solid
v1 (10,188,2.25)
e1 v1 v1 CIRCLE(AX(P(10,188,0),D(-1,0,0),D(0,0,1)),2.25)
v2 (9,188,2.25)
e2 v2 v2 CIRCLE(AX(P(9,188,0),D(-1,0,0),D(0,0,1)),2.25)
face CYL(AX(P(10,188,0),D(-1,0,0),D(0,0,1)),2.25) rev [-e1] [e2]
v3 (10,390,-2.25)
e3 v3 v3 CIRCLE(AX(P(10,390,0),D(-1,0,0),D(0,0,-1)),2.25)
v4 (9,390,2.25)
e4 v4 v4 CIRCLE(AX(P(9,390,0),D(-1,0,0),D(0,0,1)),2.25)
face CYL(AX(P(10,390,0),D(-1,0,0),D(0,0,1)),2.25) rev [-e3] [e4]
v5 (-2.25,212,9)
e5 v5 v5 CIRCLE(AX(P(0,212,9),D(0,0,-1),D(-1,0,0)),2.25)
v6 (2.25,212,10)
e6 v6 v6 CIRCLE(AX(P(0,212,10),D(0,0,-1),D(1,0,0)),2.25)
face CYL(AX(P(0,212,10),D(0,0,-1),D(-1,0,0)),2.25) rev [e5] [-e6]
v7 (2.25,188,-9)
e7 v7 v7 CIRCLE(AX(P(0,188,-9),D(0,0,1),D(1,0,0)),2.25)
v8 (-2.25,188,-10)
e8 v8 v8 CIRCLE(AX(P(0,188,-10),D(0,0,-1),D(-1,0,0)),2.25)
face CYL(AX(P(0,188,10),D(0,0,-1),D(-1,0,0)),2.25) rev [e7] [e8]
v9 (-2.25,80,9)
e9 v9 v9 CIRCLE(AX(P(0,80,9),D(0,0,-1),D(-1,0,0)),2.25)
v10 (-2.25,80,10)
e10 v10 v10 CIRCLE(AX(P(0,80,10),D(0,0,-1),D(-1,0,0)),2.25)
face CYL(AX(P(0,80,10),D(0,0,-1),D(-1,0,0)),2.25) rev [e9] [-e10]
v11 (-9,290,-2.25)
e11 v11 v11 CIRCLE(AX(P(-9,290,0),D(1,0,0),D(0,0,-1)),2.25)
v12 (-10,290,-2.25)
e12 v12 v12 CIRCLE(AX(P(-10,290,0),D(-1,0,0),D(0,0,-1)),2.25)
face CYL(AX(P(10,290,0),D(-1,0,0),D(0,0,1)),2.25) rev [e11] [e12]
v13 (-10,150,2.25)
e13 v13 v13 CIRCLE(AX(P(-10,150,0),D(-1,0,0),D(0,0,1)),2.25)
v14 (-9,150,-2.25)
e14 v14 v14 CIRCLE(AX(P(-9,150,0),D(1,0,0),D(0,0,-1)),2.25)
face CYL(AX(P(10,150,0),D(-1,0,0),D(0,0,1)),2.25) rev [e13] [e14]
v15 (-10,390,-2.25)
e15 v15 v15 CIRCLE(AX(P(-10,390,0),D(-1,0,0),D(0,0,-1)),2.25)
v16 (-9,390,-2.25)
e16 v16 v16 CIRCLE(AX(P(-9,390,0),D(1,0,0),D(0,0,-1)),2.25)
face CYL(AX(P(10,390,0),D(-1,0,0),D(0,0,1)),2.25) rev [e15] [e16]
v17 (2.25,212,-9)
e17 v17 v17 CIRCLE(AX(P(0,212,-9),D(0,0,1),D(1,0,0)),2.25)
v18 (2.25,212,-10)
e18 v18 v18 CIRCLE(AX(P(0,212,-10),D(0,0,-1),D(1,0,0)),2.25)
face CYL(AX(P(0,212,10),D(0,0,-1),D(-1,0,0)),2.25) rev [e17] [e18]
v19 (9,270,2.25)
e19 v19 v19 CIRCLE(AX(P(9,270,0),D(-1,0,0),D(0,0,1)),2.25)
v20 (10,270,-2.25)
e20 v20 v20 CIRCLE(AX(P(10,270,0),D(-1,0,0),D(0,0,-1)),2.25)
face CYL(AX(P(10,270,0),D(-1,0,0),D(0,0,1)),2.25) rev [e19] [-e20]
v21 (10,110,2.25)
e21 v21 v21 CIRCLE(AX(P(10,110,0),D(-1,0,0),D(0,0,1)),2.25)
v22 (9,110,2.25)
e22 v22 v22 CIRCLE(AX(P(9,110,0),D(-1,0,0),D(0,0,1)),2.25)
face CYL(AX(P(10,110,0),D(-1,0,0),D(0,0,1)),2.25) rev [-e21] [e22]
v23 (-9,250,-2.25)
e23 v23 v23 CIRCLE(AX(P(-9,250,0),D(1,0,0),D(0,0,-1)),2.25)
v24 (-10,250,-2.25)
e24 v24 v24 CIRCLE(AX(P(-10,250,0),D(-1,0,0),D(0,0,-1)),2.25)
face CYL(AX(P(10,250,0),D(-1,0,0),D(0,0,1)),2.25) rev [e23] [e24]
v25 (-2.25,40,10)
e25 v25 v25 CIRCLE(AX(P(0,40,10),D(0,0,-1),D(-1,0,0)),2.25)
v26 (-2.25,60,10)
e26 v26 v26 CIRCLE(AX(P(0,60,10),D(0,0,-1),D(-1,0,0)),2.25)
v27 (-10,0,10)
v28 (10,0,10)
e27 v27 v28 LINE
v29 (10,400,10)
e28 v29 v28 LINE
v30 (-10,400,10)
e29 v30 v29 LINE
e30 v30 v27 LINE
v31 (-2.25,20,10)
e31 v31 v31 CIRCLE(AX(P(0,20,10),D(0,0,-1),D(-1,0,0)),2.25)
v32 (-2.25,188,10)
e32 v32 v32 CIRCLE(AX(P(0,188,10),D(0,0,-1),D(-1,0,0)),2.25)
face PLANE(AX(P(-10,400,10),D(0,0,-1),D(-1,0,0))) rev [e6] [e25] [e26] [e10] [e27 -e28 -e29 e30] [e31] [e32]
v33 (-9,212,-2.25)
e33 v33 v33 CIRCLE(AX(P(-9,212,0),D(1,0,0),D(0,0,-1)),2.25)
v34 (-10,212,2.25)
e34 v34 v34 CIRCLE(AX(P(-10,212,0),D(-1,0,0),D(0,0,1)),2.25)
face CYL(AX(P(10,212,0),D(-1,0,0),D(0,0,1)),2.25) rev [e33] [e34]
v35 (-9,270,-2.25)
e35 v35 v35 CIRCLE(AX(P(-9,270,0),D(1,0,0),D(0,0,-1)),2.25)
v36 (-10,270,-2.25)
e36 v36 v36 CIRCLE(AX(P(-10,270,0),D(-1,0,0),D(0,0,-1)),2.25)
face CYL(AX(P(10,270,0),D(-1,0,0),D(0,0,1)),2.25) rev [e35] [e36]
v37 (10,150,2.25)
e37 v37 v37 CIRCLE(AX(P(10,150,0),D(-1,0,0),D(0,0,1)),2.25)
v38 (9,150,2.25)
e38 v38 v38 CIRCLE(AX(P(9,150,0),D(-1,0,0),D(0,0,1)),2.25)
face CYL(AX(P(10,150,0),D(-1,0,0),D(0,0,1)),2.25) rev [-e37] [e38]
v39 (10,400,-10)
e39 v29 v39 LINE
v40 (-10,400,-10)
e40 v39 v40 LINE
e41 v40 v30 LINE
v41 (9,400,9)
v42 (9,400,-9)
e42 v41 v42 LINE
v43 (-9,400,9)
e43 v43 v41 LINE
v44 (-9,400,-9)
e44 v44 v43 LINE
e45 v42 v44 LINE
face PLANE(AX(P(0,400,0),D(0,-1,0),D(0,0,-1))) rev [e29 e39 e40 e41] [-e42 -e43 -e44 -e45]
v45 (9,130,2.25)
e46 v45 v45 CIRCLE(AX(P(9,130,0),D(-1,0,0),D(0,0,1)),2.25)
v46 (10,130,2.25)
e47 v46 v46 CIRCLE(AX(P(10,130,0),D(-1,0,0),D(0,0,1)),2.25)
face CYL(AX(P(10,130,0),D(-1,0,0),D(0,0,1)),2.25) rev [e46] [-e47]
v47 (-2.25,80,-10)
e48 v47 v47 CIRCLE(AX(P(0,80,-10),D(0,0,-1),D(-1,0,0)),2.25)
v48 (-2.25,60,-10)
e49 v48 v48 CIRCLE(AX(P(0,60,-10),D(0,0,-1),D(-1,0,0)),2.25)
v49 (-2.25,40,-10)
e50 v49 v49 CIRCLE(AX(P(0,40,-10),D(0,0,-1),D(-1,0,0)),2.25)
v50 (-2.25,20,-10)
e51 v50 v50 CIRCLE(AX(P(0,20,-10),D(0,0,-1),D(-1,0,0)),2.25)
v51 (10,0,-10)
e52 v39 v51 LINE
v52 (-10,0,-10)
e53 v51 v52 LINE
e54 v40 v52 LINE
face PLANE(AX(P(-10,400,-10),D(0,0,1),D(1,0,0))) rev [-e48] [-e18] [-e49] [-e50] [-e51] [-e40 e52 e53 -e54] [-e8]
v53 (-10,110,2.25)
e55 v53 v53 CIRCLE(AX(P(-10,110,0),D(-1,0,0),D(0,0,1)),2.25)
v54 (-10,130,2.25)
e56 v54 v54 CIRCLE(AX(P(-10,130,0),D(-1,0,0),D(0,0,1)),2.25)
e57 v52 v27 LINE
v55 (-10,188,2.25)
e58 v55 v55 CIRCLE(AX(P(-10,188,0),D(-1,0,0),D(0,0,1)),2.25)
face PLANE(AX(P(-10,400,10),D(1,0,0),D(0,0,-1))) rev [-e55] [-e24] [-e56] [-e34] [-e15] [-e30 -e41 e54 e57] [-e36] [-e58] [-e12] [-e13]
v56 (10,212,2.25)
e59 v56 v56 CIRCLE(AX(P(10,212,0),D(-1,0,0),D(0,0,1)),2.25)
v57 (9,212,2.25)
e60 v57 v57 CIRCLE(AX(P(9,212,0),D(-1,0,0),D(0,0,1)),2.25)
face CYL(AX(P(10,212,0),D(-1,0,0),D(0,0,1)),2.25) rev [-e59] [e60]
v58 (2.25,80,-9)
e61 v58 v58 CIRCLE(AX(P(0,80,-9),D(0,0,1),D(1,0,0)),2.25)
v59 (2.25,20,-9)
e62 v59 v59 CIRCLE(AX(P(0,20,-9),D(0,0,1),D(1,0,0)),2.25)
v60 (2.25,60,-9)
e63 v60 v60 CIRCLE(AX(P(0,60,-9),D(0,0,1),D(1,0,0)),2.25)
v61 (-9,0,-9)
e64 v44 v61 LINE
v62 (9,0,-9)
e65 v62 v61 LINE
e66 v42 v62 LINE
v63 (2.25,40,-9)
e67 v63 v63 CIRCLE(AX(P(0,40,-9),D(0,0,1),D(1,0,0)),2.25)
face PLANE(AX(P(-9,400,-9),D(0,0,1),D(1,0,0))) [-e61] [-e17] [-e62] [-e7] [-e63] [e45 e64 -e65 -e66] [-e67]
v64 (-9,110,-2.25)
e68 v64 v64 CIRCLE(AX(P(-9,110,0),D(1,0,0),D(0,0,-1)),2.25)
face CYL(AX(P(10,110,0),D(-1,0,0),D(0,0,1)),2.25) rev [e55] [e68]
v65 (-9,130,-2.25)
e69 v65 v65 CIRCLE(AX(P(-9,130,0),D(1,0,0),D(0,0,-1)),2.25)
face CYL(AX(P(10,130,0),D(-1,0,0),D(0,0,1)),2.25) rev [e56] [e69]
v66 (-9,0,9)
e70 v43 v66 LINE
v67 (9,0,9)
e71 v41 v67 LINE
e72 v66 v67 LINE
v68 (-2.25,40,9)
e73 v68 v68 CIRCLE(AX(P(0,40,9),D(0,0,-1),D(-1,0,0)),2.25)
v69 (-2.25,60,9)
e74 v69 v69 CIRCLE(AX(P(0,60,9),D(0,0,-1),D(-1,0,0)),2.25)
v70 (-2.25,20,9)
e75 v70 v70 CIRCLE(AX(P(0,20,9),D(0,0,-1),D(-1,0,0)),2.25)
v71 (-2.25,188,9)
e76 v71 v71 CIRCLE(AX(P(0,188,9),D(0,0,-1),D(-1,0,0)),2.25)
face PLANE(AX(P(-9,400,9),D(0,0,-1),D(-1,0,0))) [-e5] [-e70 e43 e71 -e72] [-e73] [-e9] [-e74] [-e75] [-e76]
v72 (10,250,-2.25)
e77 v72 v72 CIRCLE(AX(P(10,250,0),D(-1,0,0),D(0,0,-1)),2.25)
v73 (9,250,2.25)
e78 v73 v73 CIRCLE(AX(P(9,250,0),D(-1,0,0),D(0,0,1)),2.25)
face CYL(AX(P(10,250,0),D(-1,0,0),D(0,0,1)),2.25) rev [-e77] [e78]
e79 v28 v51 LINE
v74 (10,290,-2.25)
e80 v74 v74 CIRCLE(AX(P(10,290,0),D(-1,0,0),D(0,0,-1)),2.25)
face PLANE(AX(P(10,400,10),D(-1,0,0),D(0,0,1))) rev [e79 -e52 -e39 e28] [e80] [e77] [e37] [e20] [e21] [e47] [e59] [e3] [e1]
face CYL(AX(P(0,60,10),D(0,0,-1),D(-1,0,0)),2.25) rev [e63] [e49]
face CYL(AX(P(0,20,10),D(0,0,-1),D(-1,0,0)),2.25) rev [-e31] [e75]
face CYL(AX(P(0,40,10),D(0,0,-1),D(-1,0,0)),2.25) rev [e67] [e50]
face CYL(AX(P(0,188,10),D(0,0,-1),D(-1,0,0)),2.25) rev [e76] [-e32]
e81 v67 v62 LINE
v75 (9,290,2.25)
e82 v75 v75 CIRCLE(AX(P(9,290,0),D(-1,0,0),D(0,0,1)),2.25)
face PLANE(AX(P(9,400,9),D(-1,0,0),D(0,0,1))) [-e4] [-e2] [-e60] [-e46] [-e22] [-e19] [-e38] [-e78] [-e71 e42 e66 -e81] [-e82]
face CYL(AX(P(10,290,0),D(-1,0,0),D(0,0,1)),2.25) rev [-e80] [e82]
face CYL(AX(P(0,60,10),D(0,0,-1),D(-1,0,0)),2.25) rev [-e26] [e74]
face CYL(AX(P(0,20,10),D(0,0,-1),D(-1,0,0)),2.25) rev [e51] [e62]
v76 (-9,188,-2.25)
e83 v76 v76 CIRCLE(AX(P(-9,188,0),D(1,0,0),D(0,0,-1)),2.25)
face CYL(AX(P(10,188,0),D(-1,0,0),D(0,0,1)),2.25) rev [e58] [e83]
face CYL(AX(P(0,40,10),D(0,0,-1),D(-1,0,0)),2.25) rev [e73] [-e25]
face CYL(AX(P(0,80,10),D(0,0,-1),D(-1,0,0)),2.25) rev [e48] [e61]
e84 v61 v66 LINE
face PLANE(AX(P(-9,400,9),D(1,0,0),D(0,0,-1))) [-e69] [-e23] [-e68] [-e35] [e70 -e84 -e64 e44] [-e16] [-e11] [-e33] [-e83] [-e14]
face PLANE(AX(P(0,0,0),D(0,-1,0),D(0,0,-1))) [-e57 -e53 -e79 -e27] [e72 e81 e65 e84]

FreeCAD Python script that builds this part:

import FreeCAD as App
import Part
import Sketcher
from FreeCAD import Vector


def add_polygon(sketch, points):
    """Adds a closed chain of lines whose ends are joined by coincident constraints."""
    first, n = sketch.GeometryCount, len(points)
    for a, b in zip(points, points[1:] + points[:1]):
        sketch.addGeometry(Part.LineSegment(App.Vector(*a, 0), App.Vector(*b, 0)), False)
    for i in range(n):
        sketch.addConstraint(Sketcher.Constraint("Coincident", first + i, 2, first + (i + 1) % n, 1))

doc = App.newDocument("Part")
body = doc.addObject("PartDesign::Body", "Body")

# Sketch on XZ plane
sketch1 = body.newObject("Sketcher::SketchObject", "Sketch")
sketch1.AttachmentSupport = (doc.getObject("XZ_Plane"), [""])
sketch1.MapMode = "FlatFace"
add_polygon(sketch1, [(-10, -10), (-10, 10), (10, 10), (10, -10)])  # lines 0-3
add_polygon(sketch1, [(9, 9), (-9, 9), (-9, -9), (9, -9)])  # lines 4-7
sketch1.addConstraint([
    Sketcher.Constraint("Vertical", 0),
    Sketcher.Constraint("Horizontal", 1),
    Sketcher.Constraint("Vertical", 2),
    Sketcher.Constraint("Horizontal", 3),
    Sketcher.Constraint("Horizontal", 4),
    Sketcher.Constraint("Vertical", 5),
    Sketcher.Constraint("Horizontal", 6),
    Sketcher.Constraint("Vertical", 7),
    Sketcher.Constraint("Symmetric", 0, 2, 2, 2, -1, 1),
    Sketcher.Constraint("Symmetric", 4, 2, 6, 2, -1, 1),
    Sketcher.Constraint("Equal", 3, 0),
    Sketcher.Constraint("Equal", 6, 5),
    Sketcher.Constraint("DistanceX", 1, 1, 1, 2, 20.0),
    Sketcher.Constraint("DistanceX", 4, 2, 4, 1, 18.0),
])
pad1 = body.newObject("PartDesign::Pad", "Pad")
pad1.Profile = sketch1
pad1.Length = 400
pad1.Reversed = True

# Sketch on XY plane
sketch2 = body.newObject("Sketcher::SketchObject", "Sketch001")
sketch2.AttachmentSupport = (doc.getObject("XY_Plane"), [""])
sketch2.MapMode = "FlatFace"
sketch2.AttachmentOffset = App.Placement(Vector(0, 0, -10), App.Rotation())
sketch2.addGeometry([
    Part.Circle(Vector(0, 20, 0), Vector(0, 0, 1), 2.2),  # 0
    Part.Circle(Vector(0, 40, 0), Vector(0, 0, 1), 2.2),  # 1
    Part.Circle(Vector(0, 60, 0), Vector(0, 0, 1), 2.2),  # 2
    Part.Circle(Vector(0, 80, 0), Vector(0, 0, 1), 2.2),  # 3
    Part.Circle(Vector(0, 188, 0), Vector(0, 0, 1), 2.2),  # 4
    Part.Circle(Vector(0, 212, 0), Vector(0, 0, 1), 2.2),  # 5
], False)
sketch2.addConstraint([
    Sketcher.Constraint("Equal", 0, 1),
    Sketcher.Constraint("Equal", 1, 2),
    Sketcher.Constraint("Equal", 2, 3),
    Sketcher.Constraint("Equal", 3, 4),
    Sketcher.Constraint("Equal", 4, 5),
    Sketcher.Constraint("PointOnObject", 0, 3, -2),
    Sketcher.Constraint("PointOnObject", 1, 3, -2),
    Sketcher.Constraint("PointOnObject", 2, 3, -2),
    Sketcher.Constraint("PointOnObject", 3, 3, -2),
    Sketcher.Constraint("PointOnObject", 4, 3, -2),
    Sketcher.Constraint("PointOnObject", 5, 3, -2),
    Sketcher.Constraint("Diameter", 0, 4.5),
    Sketcher.Constraint("DistanceY", -1, 1, 0, 3, 20.0),
    Sketcher.Constraint("DistanceY", -1, 1, 1, 3, 40.0),
    Sketcher.Constraint("DistanceY", -1, 1, 2, 3, 60.0),
    Sketcher.Constraint("DistanceY", -1, 1, 3, 3, 80.0),
    Sketcher.Constraint("DistanceY", -1, 1, 4, 3, 188.0),
    Sketcher.Constraint("DistanceY", -1, 1, 5, 3, 212.0),
])
pocket1 = body.newObject("PartDesign::Pocket", "Pocket")
pocket1.Profile = sketch2
pocket1.Type = "ThroughAll"
pocket1.Reversed = True

# Sketch on YZ plane
sketch3 = body.newObject("Sketcher::SketchObject", "Sketch002")
sketch3.AttachmentSupport = (doc.getObject("YZ_Plane"), [""])
sketch3.MapMode = "FlatFace"
sketch3.AttachmentOffset = App.Placement(Vector(0, 0, -10), App.Rotation())
sketch3.addGeometry([
    Part.Circle(Vector(188, 0, 0), Vector(0, 0, 1), 2.2),  # 0
    Part.Circle(Vector(212, 0, 0), Vector(0, 0, 1), 2.2),  # 1
    Part.Circle(Vector(110, 0, 0), Vector(0, 0, 1), 2.2),  # 2
    Part.Circle(Vector(130, 0, 0), Vector(0, 0, 1), 2.2),  # 3
    Part.Circle(Vector(150, 0, 0), Vector(0, 0, 1), 2.2),  # 4
    Part.Circle(Vector(250, 0, 0), Vector(0, 0, 1), 2.2),  # 5
    Part.Circle(Vector(290, 0, 0), Vector(0, 0, 1), 2.2),  # 6
    Part.Circle(Vector(270, 0, 0), Vector(0, 0, 1), 2.2),  # 7
    Part.Circle(Vector(390, 0, 0), Vector(0, 0, 1), 2.2),  # 8
], False)
sketch3.addConstraint([
    Sketcher.Constraint("Equal", 0, 1),
    Sketcher.Constraint("Equal", 1, 2),
    Sketcher.Constraint("Equal", 2, 3),
    Sketcher.Constraint("Equal", 3, 4),
    Sketcher.Constraint("Equal", 4, 5),
    Sketcher.Constraint("Equal", 5, 6),
    Sketcher.Constraint("Equal", 6, 7),
    Sketcher.Constraint("Equal", 7, 8),
    Sketcher.Constraint("PointOnObject", 0, 3, -1),
    Sketcher.Constraint("PointOnObject", 1, 3, -1),
    Sketcher.Constraint("PointOnObject", 2, 3, -1),
    Sketcher.Constraint("PointOnObject", 3, 3, -1),
    Sketcher.Constraint("PointOnObject", 4, 3, -1),
    Sketcher.Constraint("PointOnObject", 5, 3, -1),
    Sketcher.Constraint("PointOnObject", 6, 3, -1),
    Sketcher.Constraint("PointOnObject", 7, 3, -1),
    Sketcher.Constraint("PointOnObject", 8, 3, -1),
    Sketcher.Constraint("Diameter", 0, 4.5),
    Sketcher.Constraint("DistanceX", -1, 1, 0, 3, 188.0),
    Sketcher.Constraint("DistanceX", -1, 1, 1, 3, 212.0),
    Sketcher.Constraint("DistanceX", -1, 1, 2, 3, 110.0),
    Sketcher.Constraint("DistanceX", -1, 1, 3, 3, 130.0),
    Sketcher.Constraint("DistanceX", -1, 1, 4, 3, 150.0),
    Sketcher.Constraint("DistanceX", -1, 1, 5, 3, 250.0),
    Sketcher.Constraint("DistanceX", -1, 1, 6, 3, 290.0),
    Sketcher.Constraint("DistanceX", -1, 1, 7, 3, 270.0),
    Sketcher.Constraint("DistanceX", -1, 1, 8, 3, 390.0),
])
pocket2 = body.newObject("PartDesign::Pocket", "Pocket001")
pocket2.Profile = sketch3
pocket2.Type = "ThroughAll"
pocket2.Reversed = True

doc.recompute()
